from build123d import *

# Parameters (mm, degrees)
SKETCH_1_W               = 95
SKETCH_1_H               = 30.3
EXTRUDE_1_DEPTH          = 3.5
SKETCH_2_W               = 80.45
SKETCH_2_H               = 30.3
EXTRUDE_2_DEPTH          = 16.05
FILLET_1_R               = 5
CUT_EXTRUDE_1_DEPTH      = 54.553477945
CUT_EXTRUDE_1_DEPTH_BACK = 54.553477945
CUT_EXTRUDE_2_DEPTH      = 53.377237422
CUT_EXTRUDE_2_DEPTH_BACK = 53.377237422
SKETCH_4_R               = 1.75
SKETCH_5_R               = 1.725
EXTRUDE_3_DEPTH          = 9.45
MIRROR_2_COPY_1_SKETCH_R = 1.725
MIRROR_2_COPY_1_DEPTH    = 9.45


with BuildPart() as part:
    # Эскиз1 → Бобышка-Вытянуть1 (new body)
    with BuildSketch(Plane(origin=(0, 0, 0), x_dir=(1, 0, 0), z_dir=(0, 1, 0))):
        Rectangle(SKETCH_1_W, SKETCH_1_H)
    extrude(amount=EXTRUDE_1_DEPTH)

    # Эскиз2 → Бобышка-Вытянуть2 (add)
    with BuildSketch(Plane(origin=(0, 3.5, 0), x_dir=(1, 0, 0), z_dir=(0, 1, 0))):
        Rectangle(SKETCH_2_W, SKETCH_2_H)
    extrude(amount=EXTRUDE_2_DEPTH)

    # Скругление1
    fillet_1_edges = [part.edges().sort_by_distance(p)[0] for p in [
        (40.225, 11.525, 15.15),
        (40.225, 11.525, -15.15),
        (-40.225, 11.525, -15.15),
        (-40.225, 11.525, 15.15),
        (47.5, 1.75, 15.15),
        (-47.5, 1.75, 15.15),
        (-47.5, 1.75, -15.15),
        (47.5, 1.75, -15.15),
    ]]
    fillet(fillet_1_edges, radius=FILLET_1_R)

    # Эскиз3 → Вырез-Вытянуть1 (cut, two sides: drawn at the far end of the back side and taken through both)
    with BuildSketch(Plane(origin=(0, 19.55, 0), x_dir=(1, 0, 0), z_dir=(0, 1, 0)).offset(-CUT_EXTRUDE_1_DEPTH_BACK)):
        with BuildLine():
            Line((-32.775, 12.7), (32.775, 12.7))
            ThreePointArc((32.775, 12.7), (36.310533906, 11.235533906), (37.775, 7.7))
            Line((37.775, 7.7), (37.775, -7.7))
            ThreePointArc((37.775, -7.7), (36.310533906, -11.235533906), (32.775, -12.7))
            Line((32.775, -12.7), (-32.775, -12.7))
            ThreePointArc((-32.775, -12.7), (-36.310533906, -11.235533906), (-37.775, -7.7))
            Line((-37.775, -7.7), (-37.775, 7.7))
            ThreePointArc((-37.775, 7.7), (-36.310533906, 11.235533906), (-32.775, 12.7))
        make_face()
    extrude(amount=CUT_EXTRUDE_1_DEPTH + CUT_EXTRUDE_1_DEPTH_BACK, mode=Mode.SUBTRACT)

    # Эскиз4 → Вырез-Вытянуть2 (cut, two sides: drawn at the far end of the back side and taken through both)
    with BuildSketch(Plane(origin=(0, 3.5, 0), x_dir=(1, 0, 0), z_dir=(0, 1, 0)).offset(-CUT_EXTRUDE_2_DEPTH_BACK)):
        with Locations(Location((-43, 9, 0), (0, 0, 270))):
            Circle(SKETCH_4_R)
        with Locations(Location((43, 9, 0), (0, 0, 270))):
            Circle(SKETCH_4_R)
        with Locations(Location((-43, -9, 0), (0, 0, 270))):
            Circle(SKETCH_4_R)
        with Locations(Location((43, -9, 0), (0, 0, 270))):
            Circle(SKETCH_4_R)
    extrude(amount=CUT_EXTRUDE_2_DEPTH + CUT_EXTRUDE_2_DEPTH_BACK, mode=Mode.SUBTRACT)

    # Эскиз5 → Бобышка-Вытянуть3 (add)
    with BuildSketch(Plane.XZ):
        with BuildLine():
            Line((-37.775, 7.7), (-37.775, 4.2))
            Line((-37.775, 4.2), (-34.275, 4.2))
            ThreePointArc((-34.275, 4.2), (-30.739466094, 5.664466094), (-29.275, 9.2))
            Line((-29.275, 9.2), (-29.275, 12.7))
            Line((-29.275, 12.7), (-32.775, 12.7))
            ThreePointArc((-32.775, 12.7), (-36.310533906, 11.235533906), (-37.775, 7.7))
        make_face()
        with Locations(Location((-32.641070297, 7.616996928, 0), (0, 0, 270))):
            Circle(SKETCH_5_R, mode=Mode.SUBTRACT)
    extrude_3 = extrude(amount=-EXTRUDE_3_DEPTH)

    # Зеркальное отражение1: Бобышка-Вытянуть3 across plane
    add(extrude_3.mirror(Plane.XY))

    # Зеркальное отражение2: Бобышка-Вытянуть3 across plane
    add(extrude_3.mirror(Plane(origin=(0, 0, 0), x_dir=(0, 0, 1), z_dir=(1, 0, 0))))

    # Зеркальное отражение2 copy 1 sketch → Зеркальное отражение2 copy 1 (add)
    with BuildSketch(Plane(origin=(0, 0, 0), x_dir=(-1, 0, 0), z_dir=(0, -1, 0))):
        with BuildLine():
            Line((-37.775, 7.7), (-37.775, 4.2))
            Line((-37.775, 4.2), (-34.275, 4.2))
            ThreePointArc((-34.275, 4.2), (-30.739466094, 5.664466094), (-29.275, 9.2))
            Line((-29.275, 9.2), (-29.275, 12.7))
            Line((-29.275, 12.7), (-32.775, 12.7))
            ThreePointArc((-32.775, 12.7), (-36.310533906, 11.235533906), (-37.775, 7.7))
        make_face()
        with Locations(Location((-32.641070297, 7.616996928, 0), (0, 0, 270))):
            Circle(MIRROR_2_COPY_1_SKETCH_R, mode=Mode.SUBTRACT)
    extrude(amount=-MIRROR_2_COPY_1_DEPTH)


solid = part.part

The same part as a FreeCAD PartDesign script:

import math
import FreeCAD as App
import Part
import Sketcher
from FreeCAD import Vector


def edges_at(feature, points):
    """Names of the edges that pass closest to the given points."""
    edges = feature.Shape.Edges
    near = lambda p: min(range(len(edges)), key=lambda i: edges[i].distToShape(Part.Vertex(*p))[0])
    return sorted({f"Edge{near(p) + 1}" for p in points})


def add_polygon(sketch, points):
    """Adds a closed chain of lines whose ends are joined by coincident constraints."""
    first, n = sketch.GeometryCount, len(points)
    for a, b in zip(points, points[1:] + points[:1]):
        sketch.addGeometry(Part.LineSegment(App.Vector(*a, 0), App.Vector(*b, 0)), False)
    for i in range(n):
        sketch.addConstraint(Sketcher.Constraint("Coincident", first + i, 2, first + (i + 1) % n, 1))

doc = App.newDocument("Part")
body = doc.addObject("PartDesign::Body", "Body")

# Sketch on XZ plane
sketch1 = doc.addObject("Sketcher::SketchObject", "Sketch")
body.addObject(sketch1)
sketch1.AttachmentSupport = (doc.XZ_Plane, [""])
sketch1.MapMode = "FlatFace"
add_polygon(sketch1, [(-48, -15), (-48, 15), (48, 15), (48, -15)])  # lines 0-3
sketch1.addConstraint([
    Sketcher.Constraint("Vertical", 0),
    Sketcher.Constraint("Horizontal", 1),
    Sketcher.Constraint("Vertical", 2),
    Sketcher.Constraint("Horizontal", 3),
    Sketcher.Constraint("Symmetric", 0, 2, 2, 2, -1, 1),
    Sketcher.Constraint("DistanceX", 1, 1, 1, 2, 95.0),
    Sketcher.Constraint("DistanceY", 0, 1, 0, 2, 30.3),
])
pad1 = doc.addObject("PartDesign::Pad", "Pad")
body.addObject(pad1)
pad1.Profile = sketch1
pad1.Length = 3.5
pad1.Reversed = True

# Sketch on XZ plane
sketch2 = doc.addObject("Sketcher::SketchObject", "Sketch001")
body.addObject(sketch2)
sketch2.AttachmentSupport = (doc.XZ_Plane, [""])
sketch2.MapMode = "FlatFace"
sketch2.AttachmentOffset = App.Placement(Vector(0, 0, -3.5), App.Rotation())
add_polygon(sketch2, [(-40, -15), (-40, 15), (40, 15), (40, -15)])  # lines 0-3
sketch2.addConstraint([
    Sketcher.Constraint("Vertical", 0),
    Sketcher.Constraint("Horizontal", 1),
    Sketcher.Constraint("Vertical", 2),
    Sketcher.Constraint("Horizontal", 3),
    Sketcher.Constraint("Symmetric", 0, 2, 2, 2, -1, 1),
    Sketcher.Constraint("DistanceY", 0, 1, 0, 2, 30.3),
    Sketcher.Constraint("DistanceX", 1, 1, 1, 2, 80.45),
])
pad2 = doc.addObject("PartDesign::Pad", "Pad001")
body.addObject(pad2)
pad2.Profile = sketch2
pad2.Length = 16.05
pad2.Reversed = True
doc.recompute()

fillet = doc.addObject("PartDesign::Fillet", "Fillet")
body.addObject(fillet)
fillet.Base = (pad2, edges_at(pad2, [
    (40.225, 11.525, 15.15),
    (40.225, 11.525, -15.15),
    (-40.225, 11.525, -15.15),
    (-40.225, 11.525, 15.15),
    (47.5, 1.75, 15.15),
    (-47.5, 1.75, 15.15),
    (-47.5, 1.75, -15.15),
    (47.5, 1.75, -15.15),
]))
fillet.Radius = 5

# Sketch on XZ plane
sketch3 = doc.addObject("Sketcher::SketchObject", "Sketch002")
body.addObject(sketch3)
sketch3.AttachmentSupport = (doc.XZ_Plane, [""])
sketch3.MapMode = "FlatFace"
sketch3.AttachmentOffset = App.Placement(Vector(0, 0, -19.55), App.Rotation())
sketch3.addGeometry([
    Part.LineSegment(Vector(33, -13, 0), Vector(-33, -13, 0)),  # 0
    Part.ArcOfCircle(Part.Circle(Vector(-33, -8, 0), Vector(0, 0, 1), 5), math.radians(180), math.radians(270)),  # 1
    Part.LineSegment(Vector(-38, -8, 0), Vector(-38, 8, 0)),  # 2
    Part.ArcOfCircle(Part.Circle(Vector(-33, 8, 0), Vector(0, 0, 1), 5), math.radians(90), math.radians(180)),  # 3
    Part.LineSegment(Vector(-33, 13, 0), Vector(33, 13, 0)),  # 4
    Part.ArcOfCircle(Part.Circle(Vector(33, 8, 0), Vector(0, 0, 1), 5), math.radians(0), math.radians(90)),  # 5
    Part.LineSegment(Vector(38, 8, 0), Vector(38, -8, 0)),  # 6
    Part.ArcOfCircle(Part.Circle(Vector(33, -8, 0), Vector(0, 0, 1), 5), math.radians(-90), math.radians(0)),  # 7
], False)
sketch3.addConstraint([
    Sketcher.Constraint("Tangent", 0, 2, 1, 2),
    Sketcher.Constraint("Tangent", 1, 1, 2, 1),
    Sketcher.Constraint("Tangent", 2, 2, 3, 2),
    Sketcher.Constraint("Tangent", 3, 1, 4, 1),
    Sketcher.Constraint("Tangent", 4, 2, 5, 2),
    Sketcher.Constraint("Tangent", 5, 1, 6, 1),
    Sketcher.Constraint("Tangent", 6, 2, 7, 2),
    Sketcher.Constraint("Tangent", 7, 1, 0, 1),
    Sketcher.Constraint("Horizontal", 0),
    Sketcher.Constraint("Vertical", 2),
    Sketcher.Constraint("Horizontal", 4),
    Sketcher.Constraint("Vertical", 6),
    Sketcher.Constraint("Equal", 1, 3),
    Sketcher.Constraint("Equal", 3, 5),
    Sketcher.Constraint("Equal", 5, 7),
    Sketcher.Constraint("Symmetric", 1, 3, 5, 3, -1, 1),
    Sketcher.Constraint("Radius", 1, 5.0),
    Sketcher.Constraint("DistanceY", 2, 1, 2, 2, 15.4),
    Sketcher.Constraint("DistanceX", 0, 2, 0, 1, 65.55),
])
pocket1 = doc.addObject("PartDesign::Pocket", "Pocket")
body.addObject(pocket1)
pocket1.Profile = sketch3
pocket1.Type = "ThroughAll"
pocket1.Midplane = True

# Sketch on XZ plane
sketch4 = doc.addObject("Sketcher::SketchObject", "Sketch003")
body.addObject(sketch4)
sketch4.AttachmentSupport = (doc.XZ_Plane, [""])
sketch4.MapMode = "FlatFace"
sketch4.AttachmentOffset = App.Placement(Vector(0, 0, -3.5), App.Rotation())
sketch4.addGeometry([
    Part.Circle(Vector(-43, -9, 0), Vector(0, 0, 1), 1.8),
    Part.Circle(Vector(43, -9, 0), Vector(0, 0, 1), 1.8),
    Part.Circle(Vector(-43, 9, 0), Vector(0, 0, 1), 1.8),
    Part.Circle(Vector(43, 9, 0), Vector(0, 0, 1), 1.8),
], False)
sketch4.addConstraint([
    Sketcher.Constraint("Equal", 0, 1),
    Sketcher.Constraint("Equal", 1, 2),
    Sketcher.Constraint("Equal", 2, 3),
    Sketcher.Constraint("Symmetric", 1, 3, 2, 3, -1, 1),
    Sketcher.Constraint("Symmetric", 0, 3, 3, 3, -1, 1),
    Sketcher.Constraint("Symmetric", 0, 3, 1, 3, -2),
    Sketcher.Constraint("Diameter", 0, 3.5),
    Sketcher.Constraint("DistanceX", 0, 3, -1, 1, 43.0),
    Sketcher.Constraint("DistanceY", 0, 3, -1, 1, 9.0),
])
pocket2 = doc.addObject("PartDesign::Pocket", "Pocket001")
body.addObject(pocket2)
pocket2.Profile = sketch4
pocket2.Type = "ThroughAll"
pocket2.Midplane = True

# Sketch on XZ plane
sketch5 = doc.addObject("Sketcher::SketchObject", "Sketch004")
body.addObject(sketch5)
sketch5.AttachmentSupport = (doc.XZ_Plane, [""])
sketch5.MapMode = "FlatFace"
sketch5.addGeometry([
    Part.LineSegment(Vector(-37.8, 7.7, 0), Vector(-37.8, 4.2, 0)),  # 0
    Part.LineSegment(Vector(-37.8, 4.2, 0), Vector(-34.3, 4.2, 0)),  # 1
    Part.ArcOfCircle(Part.Circle(Vector(-34.3, 9.2, 0), Vector(0, 0, 1), 5), math.radians(-90), math.radians(0)),  # 2
    Part.LineSegment(Vector(-29.3, 9.2, 0), Vector(-29.3, 12.7, 0)),  # 3
    Part.LineSegment(Vector(-29.3, 12.7, 0), Vector(-32.8, 12.7, 0)),  # 4
    Part.ArcOfCircle(Part.Circle(Vector(-32.8, 7.7, 0), Vector(0, 0, 1), 5), math.radians(90), math.radians(180)),  # 5
    Part.Circle(Vector(-32.6, 7.6, 0), Vector(0, 0, 1), 1.7),  # 6
], False)
sketch5.addConstraint([
    Sketcher.Constraint("Coincident", 0, 2, 1, 1),
    Sketcher.Constraint("Tangent", 1, 2, 2, 1),
    Sketcher.Constraint("Tangent", 2, 2, 3, 1),
    Sketcher.Constraint("Coincident", 3, 2, 4, 1),
    Sketcher.Constraint("Tangent", 4, 2, 5, 1),
    Sketcher.Constraint("Tangent", 5, 2, 0, 1),
    Sketcher.Constraint("Vertical", 0),
    Sketcher.Constraint("Horizontal", 1),
    Sketcher.Constraint("Vertical", 3),
    Sketcher.Constraint("Horizontal", 4),
    Sketcher.Constraint("Equal", 2, 5),
    Sketcher.Constraint("Equal", 4, 0),
    Sketcher.Constraint("Radius", 2, 5.0),
    Sketcher.Constraint("Diameter", 6, 3.45),
    Sketcher.Constraint("DistanceX", 1, 1, 1, 2, 3.5),
    Sketcher.Constraint("DistanceY", -1, 1, 2, 3, 9.2),
    Sketcher.Constraint("DistanceX", 2, 3, -1, 1, 34.275),
    Sketcher.Constraint("DistanceX", 6, 3, -1, 1, 32.64107),
    Sketcher.Constraint("DistanceY", -1, 1, 6, 3, 7.616997),
])
pad3 = doc.addObject("PartDesign::Pad", "Pad002")
body.addObject(pad3)
pad3.Profile = sketch5
pad3.Length = 9.45
pad3.Reversed = True
doc.recompute()

mirrored = doc.addObject("PartDesign::Mirrored", "Mirrored")
body.addObject(mirrored)
mirrored.Originals = [pad3]
mirrored.MirrorPlane = (doc.XY_Plane, [""])
body.Tip = mirrored
doc.recompute()

mirrored2 = doc.addObject("PartDesign::Mirrored", "Mirrored001")
body.addObject(mirrored2)
mirrored2.Originals = [pad3]
mirrored2.MirrorPlane = (doc.YZ_Plane, [""])
body.Tip = mirrored2

# Sketch on XZ plane
sketch6 = doc.addObject("Sketcher::SketchObject", "Sketch005")
body.addObject(sketch6)
sketch6.AttachmentSupport = (doc.XZ_Plane, [""])
sketch6.MapMode = "FlatFace"
sketch6.addGeometry([
    Part.LineSegment(Vector(37.8, -7.7, 0), Vector(37.8, -4.2, 0)),  # 0
    Part.LineSegment(Vector(37.8, -4.2, 0), Vector(34.3, -4.2, 0)),  # 1
    Part.ArcOfCircle(Part.Circle(Vector(34.3, -9.2, 0), Vector(0, 0, 1), 5), math.radians(90), math.radians(180)),  # 2
    Part.LineSegment(Vector(29.3, -9.2, 0), Vector(29.3, -12.7, 0)),  # 3
    Part.LineSegment(Vector(29.3, -12.7, 0), Vector(32.8, -12.7, 0)),  # 4
    Part.ArcOfCircle(Part.Circle(Vector(32.8, -7.7, 0), Vector(0, 0, 1), 5), math.radians(-90), math.radians(0)),  # 5
    Part.Circle(Vector(32.6, -7.6, 0), Vector(0, 0, 1), 1.7),  # 6
], False)
sketch6.addConstraint([
    Sketcher.Constraint("Coincident", 0, 2, 1, 1),
    Sketcher.Constraint("Tangent", 1, 2, 2, 1),
    Sketcher.Constraint("Tangent", 2, 2, 3, 1),
    Sketcher.Constraint("Coincident", 3, 2, 4, 1),
    Sketcher.Constraint("Tangent", 4, 2, 5, 1),
    Sketcher.Constraint("Tangent", 5, 2, 0, 1),
    Sketcher.Constraint("Vertical", 0),
    Sketcher.Constraint("Horizontal", 1),
    Sketcher.Constraint("Vertical", 3),
    Sketcher.Constraint("Horizontal", 4),
    Sketcher.Constraint("Equal", 2, 5),
    Sketcher.Constraint("Equal", 4, 0),
    Sketcher.Constraint("Radius", 2, 5.0),
    Sketcher.Constraint("Diameter", 6, 3.45),
    Sketcher.Constraint("DistanceX", 1, 2, 1, 1, 3.5),
    Sketcher.Constraint("DistanceY", 2, 3, -1, 1, 9.2),
    Sketcher.Constraint("DistanceX", -1, 1, 2, 3, 34.275),
    Sketcher.Constraint("DistanceX", -1, 1, 6, 3, 32.64107),
    Sketcher.Constraint("DistanceY", 6, 3, -1, 1, 7.616997),
])
pad4 = doc.addObject("PartDesign::Pad", "Pad003")
body.addObject(pad4)
pad4.Profile = sketch6
pad4.Length = 9.45
pad4.Reversed = True

doc.recompute()
